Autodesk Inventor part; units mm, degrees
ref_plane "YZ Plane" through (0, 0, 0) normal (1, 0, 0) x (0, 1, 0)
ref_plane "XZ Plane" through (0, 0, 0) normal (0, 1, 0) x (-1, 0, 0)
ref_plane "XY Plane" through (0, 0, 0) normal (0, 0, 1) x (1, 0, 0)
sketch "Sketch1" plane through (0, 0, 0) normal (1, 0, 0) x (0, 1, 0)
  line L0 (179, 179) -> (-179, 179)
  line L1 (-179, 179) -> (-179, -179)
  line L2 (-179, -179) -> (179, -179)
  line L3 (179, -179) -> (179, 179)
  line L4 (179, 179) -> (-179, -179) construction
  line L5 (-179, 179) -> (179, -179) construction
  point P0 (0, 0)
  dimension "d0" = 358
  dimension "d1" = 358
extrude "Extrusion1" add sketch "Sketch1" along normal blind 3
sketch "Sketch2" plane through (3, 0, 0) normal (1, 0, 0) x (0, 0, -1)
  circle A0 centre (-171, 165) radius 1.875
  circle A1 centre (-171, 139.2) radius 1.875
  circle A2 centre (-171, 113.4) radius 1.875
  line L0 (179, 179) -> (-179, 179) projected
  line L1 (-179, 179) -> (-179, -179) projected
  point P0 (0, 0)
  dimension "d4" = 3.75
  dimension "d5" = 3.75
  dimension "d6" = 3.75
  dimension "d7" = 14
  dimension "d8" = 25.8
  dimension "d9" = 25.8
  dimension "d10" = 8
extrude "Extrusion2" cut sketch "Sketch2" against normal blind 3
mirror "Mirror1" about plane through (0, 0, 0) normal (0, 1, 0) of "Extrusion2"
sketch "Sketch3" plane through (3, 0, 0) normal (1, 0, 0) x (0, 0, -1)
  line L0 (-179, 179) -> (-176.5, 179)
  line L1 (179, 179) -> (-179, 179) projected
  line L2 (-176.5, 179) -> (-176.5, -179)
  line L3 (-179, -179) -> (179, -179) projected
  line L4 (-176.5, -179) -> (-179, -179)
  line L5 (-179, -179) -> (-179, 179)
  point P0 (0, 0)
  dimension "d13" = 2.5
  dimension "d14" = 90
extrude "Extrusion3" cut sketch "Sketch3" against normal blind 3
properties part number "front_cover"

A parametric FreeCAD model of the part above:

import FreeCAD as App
import Part
import Sketcher

V = App.Vector
Q = App.Units.Quantity

doc = App.newDocument("Part")
params = doc.addObject("Spreadsheet::Sheet", "Params")
for row, (alias, value) in enumerate([
    ("sketch1_width", "358 mm"),
    ("pad1_length", "3 mm"),
    ("sketch2_diameter", "3.75 mm"),
    ("pocket1_length", "3 mm"),
    ("sketch3_height", "2.5 mm"),
    ("sketch3_width", "358 mm"),
    ("pocket2_length", "3 mm"),
], start=1):
    params.set(f"A{row}", alias)
    params.set(f"B{row}", "=" + value)
    params.setAlias(f"B{row}", alias)

body = doc.addObject("PartDesign::Body", "Body")

# Sketch on YZ plane
sketch1 = body.newObject("Sketcher::SketchObject", "Sketch")
sketch1.AttachmentSupport = (doc.getObject("YZ_Plane"), [""])
sketch1.MapMode = "FlatFace"
sketch1.addGeometry([
    Part.LineSegment(V(179, -179, 0), V(179, 179, 0)),
    Part.LineSegment(V(179, 179, 0), V(-179, 179, 0)),
    Part.LineSegment(V(-179, 179, 0), V(-179, -179, 0)),
    Part.LineSegment(V(-179, -179, 0), V(179, -179, 0)),
], False)
sketch1.addConstraint([
    Sketcher.Constraint("Coincident", 0, 2, 1, 1),
    Sketcher.Constraint("Coincident", 1, 2, 2, 1),
    Sketcher.Constraint("Coincident", 2, 2, 3, 1),
    Sketcher.Constraint("Coincident", 3, 2, 0, 1),
    Sketcher.Constraint("Vertical", 0),
    Sketcher.Constraint("Horizontal", 1),
    Sketcher.Constraint("Vertical", 2),
    Sketcher.Constraint("Horizontal", 3),
    Sketcher.Constraint("Symmetric", 0, 2, 2, 2, -1, 1),
    Sketcher.Constraint("Equal", 3, 0),
    Sketcher.Constraint("DistanceX", 1, 2, 1, 1, Q("358 mm")),
])
sketch1.setExpression("Constraints[10]", "Params.sketch1_width")
pad1 = body.newObject("PartDesign::Pad", "Pad")
pad1.Profile = sketch1
pad1.setExpression("Length", "Params.pad1_length")

# Sketch on YZ plane
sketch2 = body.newObject("Sketcher::SketchObject", "Sketch001")
sketch2.AttachmentSupport = (doc.getObject("YZ_Plane"), [""])
sketch2.MapMode = "FlatFace"
sketch2.AttachmentOffset = App.Placement(V(0, 0, 3), App.Rotation())
sketch2.addGeometry([
    Part.Circle(V(165, 171, 0), V(0, 0, 1), 1.9),
    Part.Circle(V(139.2, 171, 0), V(0, 0, 1), 1.9),
    Part.Circle(V(113.4, 171, 0), V(0, 0, 1), 1.9),
], False)
sketch2.addConstraint([
    Sketcher.Constraint("Equal", 0, 1),
    Sketcher.Constraint("Equal", 1, 2),
    Sketcher.Constraint("Horizontal", 0, 3, 1, 3),
    Sketcher.Constraint("Horizontal", 1, 3, 2, 3),
    Sketcher.Constraint("Diameter", 0, Q("3.75 mm")),
    Sketcher.Constraint("DistanceX", 1, 3, 0, 3, Q("25.8 mm")),
    Sketcher.Constraint("DistanceX", 2, 3, 1, 3, Q("25.8 mm")),
    Sketcher.Constraint("DistanceX", -1, 1, 0, 3, Q("165 mm")),
    Sketcher.Constraint("DistanceY", -1, 1, 0, 3, Q("171 mm")),
])
sketch2.setExpression("Constraints[4]", "Params.sketch2_diameter")
pocket1 = body.newObject("PartDesign::Pocket", "Pocket")
pocket1.Profile = sketch2
pocket1.setExpression("Length", "Params.pocket1_length")
doc.recompute()

mirrored = body.newObject("PartDesign::Mirrored", "Mirrored")
mirrored.Originals = [pocket1]
mirrored.MirrorPlane = (doc.getObject("XZ_Plane"), [""])
body.Tip = mirrored

# Sketch on YZ plane
sketch3 = body.newObject("Sketcher::SketchObject", "Sketch002")
sketch3.AttachmentSupport = (doc.getObject("YZ_Plane"), [""])
sketch3.MapMode = "FlatFace"
sketch3.AttachmentOffset = App.Placement(V(0, 0, 3), App.Rotation())
sketch3.addGeometry([
    Part.LineSegment(V(179, 176.5, 0), V(179, 179, 0)),
    Part.LineSegment(V(179, 179, 0), V(-179, 179, 0)),
    Part.LineSegment(V(-179, 179, 0), V(-179, 176.5, 0)),
    Part.LineSegment(V(-179, 176.5, 0), V(179, 176.5, 0)),
], False)
sketch3.addConstraint([
    Sketcher.Constraint("Coincident", 0, 2, 1, 1),
    Sketcher.Constraint("Coincident", 1, 2, 2, 1),
    Sketcher.Constraint("Coincident", 2, 2, 3, 1),
    Sketcher.Constraint("Coincident", 3, 2, 0, 1),
    Sketcher.Constraint("Vertical", 0),
    Sketcher.Constraint("Horizontal", 1),
    Sketcher.Constraint("Vertical", 2),
    Sketcher.Constraint("Horizontal", 3),
    Sketcher.Constraint("DistanceY", 0, 1, 0, 2, Q("2.5 mm")),
    Sketcher.Constraint("DistanceX", 1, 2, 1, 1, Q("358 mm")),
    Sketcher.Constraint("DistanceX", -1, 1, 0, 2, Q("179 mm")),
    Sketcher.Constraint("DistanceY", -1, 1, 0, 2, Q("179 mm")),
])
sketch3.setExpression("Constraints[8]", "Params.sketch3_height")
sketch3.setExpression("Constraints[9]", "Params.sketch3_width")
pocket2 = body.newObject("PartDesign::Pocket", "Pocket001")
pocket2.Profile = sketch3
pocket2.setExpression("Length", "Params.pocket2_length")

doc.recompute()
